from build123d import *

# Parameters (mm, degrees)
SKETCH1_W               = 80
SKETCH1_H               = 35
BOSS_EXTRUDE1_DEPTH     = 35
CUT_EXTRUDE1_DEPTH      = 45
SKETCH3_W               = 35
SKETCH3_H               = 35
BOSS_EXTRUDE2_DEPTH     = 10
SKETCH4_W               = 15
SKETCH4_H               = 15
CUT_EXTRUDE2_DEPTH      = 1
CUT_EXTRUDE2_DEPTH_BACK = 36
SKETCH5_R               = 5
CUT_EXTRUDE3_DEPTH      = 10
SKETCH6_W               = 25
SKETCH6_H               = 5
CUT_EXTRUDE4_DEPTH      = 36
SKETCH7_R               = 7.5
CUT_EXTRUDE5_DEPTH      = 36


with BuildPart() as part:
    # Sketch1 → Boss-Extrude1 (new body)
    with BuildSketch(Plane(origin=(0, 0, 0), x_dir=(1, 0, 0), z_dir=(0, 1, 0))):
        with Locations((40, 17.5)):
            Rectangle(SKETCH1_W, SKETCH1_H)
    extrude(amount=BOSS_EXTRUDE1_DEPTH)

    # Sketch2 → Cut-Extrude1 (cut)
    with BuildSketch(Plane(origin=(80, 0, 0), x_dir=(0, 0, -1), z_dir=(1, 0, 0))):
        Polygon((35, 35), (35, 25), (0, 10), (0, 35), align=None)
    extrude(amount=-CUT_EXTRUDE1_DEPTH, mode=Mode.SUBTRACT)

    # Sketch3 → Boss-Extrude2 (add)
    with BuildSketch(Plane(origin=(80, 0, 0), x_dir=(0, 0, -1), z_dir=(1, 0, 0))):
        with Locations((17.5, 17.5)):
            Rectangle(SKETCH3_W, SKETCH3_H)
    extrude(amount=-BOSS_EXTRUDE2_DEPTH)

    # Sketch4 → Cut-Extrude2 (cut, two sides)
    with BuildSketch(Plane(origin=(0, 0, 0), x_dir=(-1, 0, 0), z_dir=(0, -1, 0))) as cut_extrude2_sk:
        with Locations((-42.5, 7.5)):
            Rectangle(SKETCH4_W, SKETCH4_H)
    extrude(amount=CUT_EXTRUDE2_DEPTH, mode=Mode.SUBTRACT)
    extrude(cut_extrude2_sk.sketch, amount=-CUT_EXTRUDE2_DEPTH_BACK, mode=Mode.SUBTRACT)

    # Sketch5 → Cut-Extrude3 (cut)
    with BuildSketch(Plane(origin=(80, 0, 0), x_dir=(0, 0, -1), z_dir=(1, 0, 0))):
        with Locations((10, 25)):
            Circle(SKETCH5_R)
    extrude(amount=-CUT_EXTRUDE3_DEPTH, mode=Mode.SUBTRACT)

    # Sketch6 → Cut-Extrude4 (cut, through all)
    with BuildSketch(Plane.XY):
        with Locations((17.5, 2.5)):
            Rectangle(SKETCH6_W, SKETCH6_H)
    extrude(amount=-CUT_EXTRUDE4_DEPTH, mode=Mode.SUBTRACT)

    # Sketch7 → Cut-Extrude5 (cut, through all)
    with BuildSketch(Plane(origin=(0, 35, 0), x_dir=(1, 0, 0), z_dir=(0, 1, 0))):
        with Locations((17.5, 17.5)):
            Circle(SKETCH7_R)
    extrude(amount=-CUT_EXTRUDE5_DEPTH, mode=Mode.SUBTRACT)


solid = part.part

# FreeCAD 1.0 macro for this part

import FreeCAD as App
import Part
import Sketcher


def add_polygon(sketch, points):
    """Adds a closed chain of lines whose ends are joined by coincident constraints."""
    first, n = sketch.GeometryCount, len(points)
    for a, b in zip(points, points[1:] + points[:1]):
        sketch.addGeometry(Part.LineSegment(App.Vector(*a, 0), App.Vector(*b, 0)), False)
    for i in range(n):
        sketch.addConstraint(Sketcher.Constraint("Coincident", first + i, 2, first + (i + 1) % n, 1))

doc = App.newDocument("Part")
body = doc.addObject("PartDesign::Body", "Body")

# Sketch on XZ plane
sketch1 = doc.addObject("Sketcher::SketchObject", "Sketch")
body.addObject(sketch1)
sketch1.AttachmentSupport = (doc.XZ_Plane, [""])
sketch1.MapMode = "FlatFace"
add_polygon(sketch1, [(0, -35), (0, 0), (80, 0), (80, -35)])  # lines 0-3
sketch1.addConstraint(Sketcher.Constraint("Vertical", 0))
sketch1.addConstraint(Sketcher.Constraint("Horizontal", 1))
sketch1.addConstraint(Sketcher.Constraint("Vertical", 2))
sketch1.addConstraint(Sketcher.Constraint("Horizontal", 3))
sketch1.addConstraint(Sketcher.Constraint("Coincident", 0, 2, -1, 1))
sketch1.addConstraint(Sketcher.Constraint("DistanceX", 1, 1, 1, 2, 80.0))
sketch1.addConstraint(Sketcher.Constraint("DistanceY", 0, 1, 0, 2, 35.0))
pad1 = doc.addObject("PartDesign::Pad", "Pad")
body.addObject(pad1)
pad1.Profile = sketch1
pad1.Length = 35
pad1.Reversed = True

# Sketch on YZ plane
sketch2 = doc.addObject("Sketcher::SketchObject", "Sketch001")
body.addObject(sketch2)
sketch2.AttachmentSupport = (doc.YZ_Plane, [""])
sketch2.MapMode = "FlatFace"
sketch2.AttachmentOffset = App.Placement(App.Vector(0, 0, 80), App.Rotation())
add_polygon(sketch2, [(25, -35), (35, -35), (35, 0), (10, 0)])  # lines 0-3
sketch2.addConstraint(Sketcher.Constraint("Horizontal", 0))
sketch2.addConstraint(Sketcher.Constraint("Vertical", 1))
sketch2.addConstraint(Sketcher.Constraint("Horizontal", 2))
sketch2.addConstraint(Sketcher.Constraint("PointOnObject", 1, 2, -1))
sketch2.addConstraint(Sketcher.Constraint("DistanceX", 0, 1, 0, 2, 10.0))
sketch2.addConstraint(Sketcher.Constraint("DistanceX", 2, 2, 2, 1, 25.0))
sketch2.addConstraint(Sketcher.Constraint("DistanceY", 1, 1, 1, 2, 35.0))
sketch2.addConstraint(Sketcher.Constraint("DistanceX", -1, 1, 0, 2, 35.0))
pocket1 = doc.addObject("PartDesign::Pocket", "Pocket")
body.addObject(pocket1)
pocket1.Profile = sketch2
pocket1.Length = 45

# Sketch on YZ plane
sketch3 = doc.addObject("Sketcher::SketchObject", "Sketch002")
body.addObject(sketch3)
sketch3.AttachmentSupport = (doc.YZ_Plane, [""])
sketch3.MapMode = "FlatFace"
sketch3.AttachmentOffset = App.Placement(App.Vector(0, 0, 80), App.Rotation())
add_polygon(sketch3, [(35, 0), (0, 0), (0, -35), (35, -35)])  # lines 0-3
sketch3.addConstraint(Sketcher.Constraint("Horizontal", 0))
sketch3.addConstraint(Sketcher.Constraint("Vertical", 1))
sketch3.addConstraint(Sketcher.Constraint("Horizontal", 2))
sketch3.addConstraint(Sketcher.Constraint("Vertical", 3))
sketch3.addConstraint(Sketcher.Constraint("Coincident", 0, 2, -1, 1))
sketch3.addConstraint(Sketcher.Constraint("Equal", 2, 1))
sketch3.addConstraint(Sketcher.Constraint("DistanceX", 0, 2, 0, 1, 35.0))
pad2 = doc.addObject("PartDesign::Pad", "Pad001")
body.addObject(pad2)
pad2.Profile = sketch3
pad2.Length = 10
pad2.Reversed = True

# Sketch on XZ plane
sketch4 = doc.addObject("Sketcher::SketchObject", "Sketch003")
body.addObject(sketch4)
sketch4.AttachmentSupport = (doc.XZ_Plane, [""])
sketch4.MapMode = "FlatFace"
add_polygon(sketch4, [(50, -15), (50, 0), (35, 0), (35, -15)])  # lines 0-3
sketch4.addConstraint(Sketcher.Constraint("Vertical", 0))
sketch4.addConstraint(Sketcher.Constraint("Horizontal", 1))
sketch4.addConstraint(Sketcher.Constraint("Vertical", 2))
sketch4.addConstraint(Sketcher.Constraint("Horizontal", 3))
sketch4.addConstraint(Sketcher.Constraint("PointOnObject", 0, 2, -1))
sketch4.addConstraint(Sketcher.Constraint("Equal", 3, 0))
sketch4.addConstraint(Sketcher.Constraint("DistanceX", 1, 2, 1, 1, 15.0))
sketch4.addConstraint(Sketcher.Constraint("DistanceX", -1, 1, 0, 2, 50.0))
pocket2 = doc.addObject("PartDesign::Pocket", "Pocket001")
body.addObject(pocket2)
pocket2.Profile = sketch4
pocket2.Type = "ThroughAll"
pocket2.Midplane = True

# Sketch on YZ plane
sketch5 = doc.addObject("Sketcher::SketchObject", "Sketch004")
body.addObject(sketch5)
sketch5.AttachmentSupport = (doc.YZ_Plane, [""])
sketch5.MapMode = "FlatFace"
sketch5.AttachmentOffset = App.Placement(App.Vector(0, 0, 80), App.Rotation())
sketch5.addGeometry(Part.Circle(App.Vector(25, -10, 0), App.Vector(0, 0, 1), 5), False)
sketch5.addConstraint(Sketcher.Constraint("Diameter", 0, 10.0))
sketch5.addConstraint(Sketcher.Constraint("DistanceX", -1, 1, 0, 3, 25.0))
sketch5.addConstraint(Sketcher.Constraint("DistanceY", 0, 3, -1, 1, 10.0))
pocket3 = doc.addObject("PartDesign::Pocket", "Pocket002")
body.addObject(pocket3)
pocket3.Profile = sketch5
pocket3.Length = 10

# Sketch on XY plane
sketch6 = doc.addObject("Sketcher::SketchObject", "Sketch005")
body.addObject(sketch6)
sketch6.AttachmentSupport = (doc.XY_Plane, [""])
sketch6.MapMode = "FlatFace"
add_polygon(sketch6, [(5, 5), (5, 0), (30, 0), (30, 5)])  # lines 0-3
sketch6.addConstraint(Sketcher.Constraint("Vertical", 0))
sketch6.addConstraint(Sketcher.Constraint("Horizontal", 1))
sketch6.addConstraint(Sketcher.Constraint("Vertical", 2))
sketch6.addConstraint(Sketcher.Constraint("Horizontal", 3))
sketch6.addConstraint(Sketcher.Constraint("PointOnObject", 0, 2, -1))
sketch6.addConstraint(Sketcher.Constraint("DistanceX", 1, 1, 1, 2, 25.0))
sketch6.addConstraint(Sketcher.Constraint("DistanceY", 0, 2, 0, 1, 5.0))
sketch6.addConstraint(Sketcher.Constraint("DistanceX", -1, 1, 0, 2, 5.0))
pocket4 = doc.addObject("PartDesign::Pocket", "Pocket003")
body.addObject(pocket4)
pocket4.Profile = sketch6
pocket4.Type = "ThroughAll"

# Sketch on XZ plane
sketch7 = doc.addObject("Sketcher::SketchObject", "Sketch006")
body.addObject(sketch7)
sketch7.AttachmentSupport = (doc.XZ_Plane, [""])
sketch7.MapMode = "FlatFace"
sketch7.AttachmentOffset = App.Placement(App.Vector(0, 0, -35), App.Rotation())
sketch7.addGeometry(Part.Circle(App.Vector(18, -18, 0), App.Vector(0, 0, 1), 8), False)
sketch7.addConstraint(Sketcher.Constraint("Diameter", 0, 15.0))
sketch7.addConstraint(Sketcher.Constraint("DistanceX", -1, 1, 0, 3, 17.5))
sketch7.addConstraint(Sketcher.Constraint("DistanceY", 0, 3, -1, 1, 17.5))
pocket5 = doc.addObject("PartDesign::Pocket", "Pocket004")
body.addObject(pocket5)
pocket5.Profile = sketch7
pocket5.Type = "ThroughAll"
pocket5.Reversed = True

doc.recompute()
